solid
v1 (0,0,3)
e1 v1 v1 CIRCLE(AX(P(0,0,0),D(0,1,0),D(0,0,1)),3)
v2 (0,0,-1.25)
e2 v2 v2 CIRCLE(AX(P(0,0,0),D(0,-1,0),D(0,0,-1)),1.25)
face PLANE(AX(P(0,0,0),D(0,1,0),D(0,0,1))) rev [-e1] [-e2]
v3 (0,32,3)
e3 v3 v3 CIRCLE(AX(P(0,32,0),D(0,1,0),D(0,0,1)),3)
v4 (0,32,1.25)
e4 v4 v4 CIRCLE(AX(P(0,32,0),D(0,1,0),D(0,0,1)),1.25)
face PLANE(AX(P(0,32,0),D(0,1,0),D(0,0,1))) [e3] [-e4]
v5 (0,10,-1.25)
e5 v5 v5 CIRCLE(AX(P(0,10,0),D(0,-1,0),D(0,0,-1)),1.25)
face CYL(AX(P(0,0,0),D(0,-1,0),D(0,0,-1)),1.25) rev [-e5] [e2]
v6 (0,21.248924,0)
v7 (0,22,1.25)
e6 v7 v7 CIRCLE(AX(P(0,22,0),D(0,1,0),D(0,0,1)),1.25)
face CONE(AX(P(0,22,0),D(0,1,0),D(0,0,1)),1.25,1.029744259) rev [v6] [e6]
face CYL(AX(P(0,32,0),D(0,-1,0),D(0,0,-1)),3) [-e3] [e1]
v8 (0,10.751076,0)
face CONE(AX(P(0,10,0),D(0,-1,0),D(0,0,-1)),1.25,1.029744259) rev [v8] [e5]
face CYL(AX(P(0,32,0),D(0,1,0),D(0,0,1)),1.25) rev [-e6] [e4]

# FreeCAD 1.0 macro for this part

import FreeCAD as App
import Part
import Sketcher
Q = App.Units.Quantity

doc = App.newDocument("Part")
body = doc.addObject("PartDesign::Body", "Body")

# Sketch on XZ plane
sketch1 = doc.addObject("Sketcher::SketchObject", "Sketch")
body.addObject(sketch1)
sketch1.AttachmentSupport = (doc.XZ_Plane, [""])
sketch1.MapMode = "FlatFace"
sketch1.addGeometry(Part.Circle(App.Vector(0, 0, 0), App.Vector(0, 0, 1), 3), False)
sketch1.addConstraint([
    Sketcher.Constraint("Coincident", 0, 3, -1, 1),
    Sketcher.Constraint("Diameter", 0, Q("6 mm")),
])
pad1 = doc.addObject("PartDesign::Pad", "Pad")
body.addObject(pad1)
pad1.Profile = sketch1
pad1.Length = 32
pad1.Reversed = True

# Sketch on XZ plane
sketch2 = doc.addObject("Sketcher::SketchObject", "Sketch001")
body.addObject(sketch2)
sketch2.AttachmentSupport = (doc.XZ_Plane, [""])
sketch2.MapMode = "FlatFace"
sketch2.AttachmentOffset = App.Placement(App.Vector(0, 0, -32), App.Rotation())
sketch2.addGeometry(Part.Circle(App.Vector(0, 0, 0), App.Vector(0, 0, 1), 1.2), False)
sketch2.addConstraint([
    Sketcher.Constraint("Coincident", 0, 3, -1, 1),
    Sketcher.Constraint("Diameter", 0, Q("2.5 mm")),
])
doc.recompute()
hole = doc.addObject("PartDesign::Hole", "Hole")
body.addObject(hole)
hole.Profile = sketch2
hole.ThreadType = "None"
hole.Diameter = 2.5
hole.DepthType = "Dimension"
hole.Depth = 10
hole.DrillPoint = "Angled"
hole.DrillPointAngle = 118
hole.Reversed = True

# Sketch on XZ plane
sketch3 = doc.addObject("Sketcher::SketchObject", "Sketch002")
body.addObject(sketch3)
sketch3.AttachmentSupport = (doc.XZ_Plane, [""])
sketch3.MapMode = "FlatFace"
sketch3.addGeometry(Part.Circle(App.Vector(0, 0, 0), App.Vector(0, 0, 1), 1.2), False)
sketch3.addConstraint([
    Sketcher.Constraint("Coincident", 0, 3, -1, 1),
    Sketcher.Constraint("Diameter", 0, Q("2.5 mm")),
])
doc.recompute()
hole2 = doc.addObject("PartDesign::Hole", "Hole001")
body.addObject(hole2)
hole2.Profile = sketch3
hole2.ThreadType = "None"
hole2.Diameter = 2.5
hole2.DepthType = "Dimension"
hole2.Depth = 10
hole2.DrillPoint = "Angled"
hole2.DrillPointAngle = 118

doc.recompute()
